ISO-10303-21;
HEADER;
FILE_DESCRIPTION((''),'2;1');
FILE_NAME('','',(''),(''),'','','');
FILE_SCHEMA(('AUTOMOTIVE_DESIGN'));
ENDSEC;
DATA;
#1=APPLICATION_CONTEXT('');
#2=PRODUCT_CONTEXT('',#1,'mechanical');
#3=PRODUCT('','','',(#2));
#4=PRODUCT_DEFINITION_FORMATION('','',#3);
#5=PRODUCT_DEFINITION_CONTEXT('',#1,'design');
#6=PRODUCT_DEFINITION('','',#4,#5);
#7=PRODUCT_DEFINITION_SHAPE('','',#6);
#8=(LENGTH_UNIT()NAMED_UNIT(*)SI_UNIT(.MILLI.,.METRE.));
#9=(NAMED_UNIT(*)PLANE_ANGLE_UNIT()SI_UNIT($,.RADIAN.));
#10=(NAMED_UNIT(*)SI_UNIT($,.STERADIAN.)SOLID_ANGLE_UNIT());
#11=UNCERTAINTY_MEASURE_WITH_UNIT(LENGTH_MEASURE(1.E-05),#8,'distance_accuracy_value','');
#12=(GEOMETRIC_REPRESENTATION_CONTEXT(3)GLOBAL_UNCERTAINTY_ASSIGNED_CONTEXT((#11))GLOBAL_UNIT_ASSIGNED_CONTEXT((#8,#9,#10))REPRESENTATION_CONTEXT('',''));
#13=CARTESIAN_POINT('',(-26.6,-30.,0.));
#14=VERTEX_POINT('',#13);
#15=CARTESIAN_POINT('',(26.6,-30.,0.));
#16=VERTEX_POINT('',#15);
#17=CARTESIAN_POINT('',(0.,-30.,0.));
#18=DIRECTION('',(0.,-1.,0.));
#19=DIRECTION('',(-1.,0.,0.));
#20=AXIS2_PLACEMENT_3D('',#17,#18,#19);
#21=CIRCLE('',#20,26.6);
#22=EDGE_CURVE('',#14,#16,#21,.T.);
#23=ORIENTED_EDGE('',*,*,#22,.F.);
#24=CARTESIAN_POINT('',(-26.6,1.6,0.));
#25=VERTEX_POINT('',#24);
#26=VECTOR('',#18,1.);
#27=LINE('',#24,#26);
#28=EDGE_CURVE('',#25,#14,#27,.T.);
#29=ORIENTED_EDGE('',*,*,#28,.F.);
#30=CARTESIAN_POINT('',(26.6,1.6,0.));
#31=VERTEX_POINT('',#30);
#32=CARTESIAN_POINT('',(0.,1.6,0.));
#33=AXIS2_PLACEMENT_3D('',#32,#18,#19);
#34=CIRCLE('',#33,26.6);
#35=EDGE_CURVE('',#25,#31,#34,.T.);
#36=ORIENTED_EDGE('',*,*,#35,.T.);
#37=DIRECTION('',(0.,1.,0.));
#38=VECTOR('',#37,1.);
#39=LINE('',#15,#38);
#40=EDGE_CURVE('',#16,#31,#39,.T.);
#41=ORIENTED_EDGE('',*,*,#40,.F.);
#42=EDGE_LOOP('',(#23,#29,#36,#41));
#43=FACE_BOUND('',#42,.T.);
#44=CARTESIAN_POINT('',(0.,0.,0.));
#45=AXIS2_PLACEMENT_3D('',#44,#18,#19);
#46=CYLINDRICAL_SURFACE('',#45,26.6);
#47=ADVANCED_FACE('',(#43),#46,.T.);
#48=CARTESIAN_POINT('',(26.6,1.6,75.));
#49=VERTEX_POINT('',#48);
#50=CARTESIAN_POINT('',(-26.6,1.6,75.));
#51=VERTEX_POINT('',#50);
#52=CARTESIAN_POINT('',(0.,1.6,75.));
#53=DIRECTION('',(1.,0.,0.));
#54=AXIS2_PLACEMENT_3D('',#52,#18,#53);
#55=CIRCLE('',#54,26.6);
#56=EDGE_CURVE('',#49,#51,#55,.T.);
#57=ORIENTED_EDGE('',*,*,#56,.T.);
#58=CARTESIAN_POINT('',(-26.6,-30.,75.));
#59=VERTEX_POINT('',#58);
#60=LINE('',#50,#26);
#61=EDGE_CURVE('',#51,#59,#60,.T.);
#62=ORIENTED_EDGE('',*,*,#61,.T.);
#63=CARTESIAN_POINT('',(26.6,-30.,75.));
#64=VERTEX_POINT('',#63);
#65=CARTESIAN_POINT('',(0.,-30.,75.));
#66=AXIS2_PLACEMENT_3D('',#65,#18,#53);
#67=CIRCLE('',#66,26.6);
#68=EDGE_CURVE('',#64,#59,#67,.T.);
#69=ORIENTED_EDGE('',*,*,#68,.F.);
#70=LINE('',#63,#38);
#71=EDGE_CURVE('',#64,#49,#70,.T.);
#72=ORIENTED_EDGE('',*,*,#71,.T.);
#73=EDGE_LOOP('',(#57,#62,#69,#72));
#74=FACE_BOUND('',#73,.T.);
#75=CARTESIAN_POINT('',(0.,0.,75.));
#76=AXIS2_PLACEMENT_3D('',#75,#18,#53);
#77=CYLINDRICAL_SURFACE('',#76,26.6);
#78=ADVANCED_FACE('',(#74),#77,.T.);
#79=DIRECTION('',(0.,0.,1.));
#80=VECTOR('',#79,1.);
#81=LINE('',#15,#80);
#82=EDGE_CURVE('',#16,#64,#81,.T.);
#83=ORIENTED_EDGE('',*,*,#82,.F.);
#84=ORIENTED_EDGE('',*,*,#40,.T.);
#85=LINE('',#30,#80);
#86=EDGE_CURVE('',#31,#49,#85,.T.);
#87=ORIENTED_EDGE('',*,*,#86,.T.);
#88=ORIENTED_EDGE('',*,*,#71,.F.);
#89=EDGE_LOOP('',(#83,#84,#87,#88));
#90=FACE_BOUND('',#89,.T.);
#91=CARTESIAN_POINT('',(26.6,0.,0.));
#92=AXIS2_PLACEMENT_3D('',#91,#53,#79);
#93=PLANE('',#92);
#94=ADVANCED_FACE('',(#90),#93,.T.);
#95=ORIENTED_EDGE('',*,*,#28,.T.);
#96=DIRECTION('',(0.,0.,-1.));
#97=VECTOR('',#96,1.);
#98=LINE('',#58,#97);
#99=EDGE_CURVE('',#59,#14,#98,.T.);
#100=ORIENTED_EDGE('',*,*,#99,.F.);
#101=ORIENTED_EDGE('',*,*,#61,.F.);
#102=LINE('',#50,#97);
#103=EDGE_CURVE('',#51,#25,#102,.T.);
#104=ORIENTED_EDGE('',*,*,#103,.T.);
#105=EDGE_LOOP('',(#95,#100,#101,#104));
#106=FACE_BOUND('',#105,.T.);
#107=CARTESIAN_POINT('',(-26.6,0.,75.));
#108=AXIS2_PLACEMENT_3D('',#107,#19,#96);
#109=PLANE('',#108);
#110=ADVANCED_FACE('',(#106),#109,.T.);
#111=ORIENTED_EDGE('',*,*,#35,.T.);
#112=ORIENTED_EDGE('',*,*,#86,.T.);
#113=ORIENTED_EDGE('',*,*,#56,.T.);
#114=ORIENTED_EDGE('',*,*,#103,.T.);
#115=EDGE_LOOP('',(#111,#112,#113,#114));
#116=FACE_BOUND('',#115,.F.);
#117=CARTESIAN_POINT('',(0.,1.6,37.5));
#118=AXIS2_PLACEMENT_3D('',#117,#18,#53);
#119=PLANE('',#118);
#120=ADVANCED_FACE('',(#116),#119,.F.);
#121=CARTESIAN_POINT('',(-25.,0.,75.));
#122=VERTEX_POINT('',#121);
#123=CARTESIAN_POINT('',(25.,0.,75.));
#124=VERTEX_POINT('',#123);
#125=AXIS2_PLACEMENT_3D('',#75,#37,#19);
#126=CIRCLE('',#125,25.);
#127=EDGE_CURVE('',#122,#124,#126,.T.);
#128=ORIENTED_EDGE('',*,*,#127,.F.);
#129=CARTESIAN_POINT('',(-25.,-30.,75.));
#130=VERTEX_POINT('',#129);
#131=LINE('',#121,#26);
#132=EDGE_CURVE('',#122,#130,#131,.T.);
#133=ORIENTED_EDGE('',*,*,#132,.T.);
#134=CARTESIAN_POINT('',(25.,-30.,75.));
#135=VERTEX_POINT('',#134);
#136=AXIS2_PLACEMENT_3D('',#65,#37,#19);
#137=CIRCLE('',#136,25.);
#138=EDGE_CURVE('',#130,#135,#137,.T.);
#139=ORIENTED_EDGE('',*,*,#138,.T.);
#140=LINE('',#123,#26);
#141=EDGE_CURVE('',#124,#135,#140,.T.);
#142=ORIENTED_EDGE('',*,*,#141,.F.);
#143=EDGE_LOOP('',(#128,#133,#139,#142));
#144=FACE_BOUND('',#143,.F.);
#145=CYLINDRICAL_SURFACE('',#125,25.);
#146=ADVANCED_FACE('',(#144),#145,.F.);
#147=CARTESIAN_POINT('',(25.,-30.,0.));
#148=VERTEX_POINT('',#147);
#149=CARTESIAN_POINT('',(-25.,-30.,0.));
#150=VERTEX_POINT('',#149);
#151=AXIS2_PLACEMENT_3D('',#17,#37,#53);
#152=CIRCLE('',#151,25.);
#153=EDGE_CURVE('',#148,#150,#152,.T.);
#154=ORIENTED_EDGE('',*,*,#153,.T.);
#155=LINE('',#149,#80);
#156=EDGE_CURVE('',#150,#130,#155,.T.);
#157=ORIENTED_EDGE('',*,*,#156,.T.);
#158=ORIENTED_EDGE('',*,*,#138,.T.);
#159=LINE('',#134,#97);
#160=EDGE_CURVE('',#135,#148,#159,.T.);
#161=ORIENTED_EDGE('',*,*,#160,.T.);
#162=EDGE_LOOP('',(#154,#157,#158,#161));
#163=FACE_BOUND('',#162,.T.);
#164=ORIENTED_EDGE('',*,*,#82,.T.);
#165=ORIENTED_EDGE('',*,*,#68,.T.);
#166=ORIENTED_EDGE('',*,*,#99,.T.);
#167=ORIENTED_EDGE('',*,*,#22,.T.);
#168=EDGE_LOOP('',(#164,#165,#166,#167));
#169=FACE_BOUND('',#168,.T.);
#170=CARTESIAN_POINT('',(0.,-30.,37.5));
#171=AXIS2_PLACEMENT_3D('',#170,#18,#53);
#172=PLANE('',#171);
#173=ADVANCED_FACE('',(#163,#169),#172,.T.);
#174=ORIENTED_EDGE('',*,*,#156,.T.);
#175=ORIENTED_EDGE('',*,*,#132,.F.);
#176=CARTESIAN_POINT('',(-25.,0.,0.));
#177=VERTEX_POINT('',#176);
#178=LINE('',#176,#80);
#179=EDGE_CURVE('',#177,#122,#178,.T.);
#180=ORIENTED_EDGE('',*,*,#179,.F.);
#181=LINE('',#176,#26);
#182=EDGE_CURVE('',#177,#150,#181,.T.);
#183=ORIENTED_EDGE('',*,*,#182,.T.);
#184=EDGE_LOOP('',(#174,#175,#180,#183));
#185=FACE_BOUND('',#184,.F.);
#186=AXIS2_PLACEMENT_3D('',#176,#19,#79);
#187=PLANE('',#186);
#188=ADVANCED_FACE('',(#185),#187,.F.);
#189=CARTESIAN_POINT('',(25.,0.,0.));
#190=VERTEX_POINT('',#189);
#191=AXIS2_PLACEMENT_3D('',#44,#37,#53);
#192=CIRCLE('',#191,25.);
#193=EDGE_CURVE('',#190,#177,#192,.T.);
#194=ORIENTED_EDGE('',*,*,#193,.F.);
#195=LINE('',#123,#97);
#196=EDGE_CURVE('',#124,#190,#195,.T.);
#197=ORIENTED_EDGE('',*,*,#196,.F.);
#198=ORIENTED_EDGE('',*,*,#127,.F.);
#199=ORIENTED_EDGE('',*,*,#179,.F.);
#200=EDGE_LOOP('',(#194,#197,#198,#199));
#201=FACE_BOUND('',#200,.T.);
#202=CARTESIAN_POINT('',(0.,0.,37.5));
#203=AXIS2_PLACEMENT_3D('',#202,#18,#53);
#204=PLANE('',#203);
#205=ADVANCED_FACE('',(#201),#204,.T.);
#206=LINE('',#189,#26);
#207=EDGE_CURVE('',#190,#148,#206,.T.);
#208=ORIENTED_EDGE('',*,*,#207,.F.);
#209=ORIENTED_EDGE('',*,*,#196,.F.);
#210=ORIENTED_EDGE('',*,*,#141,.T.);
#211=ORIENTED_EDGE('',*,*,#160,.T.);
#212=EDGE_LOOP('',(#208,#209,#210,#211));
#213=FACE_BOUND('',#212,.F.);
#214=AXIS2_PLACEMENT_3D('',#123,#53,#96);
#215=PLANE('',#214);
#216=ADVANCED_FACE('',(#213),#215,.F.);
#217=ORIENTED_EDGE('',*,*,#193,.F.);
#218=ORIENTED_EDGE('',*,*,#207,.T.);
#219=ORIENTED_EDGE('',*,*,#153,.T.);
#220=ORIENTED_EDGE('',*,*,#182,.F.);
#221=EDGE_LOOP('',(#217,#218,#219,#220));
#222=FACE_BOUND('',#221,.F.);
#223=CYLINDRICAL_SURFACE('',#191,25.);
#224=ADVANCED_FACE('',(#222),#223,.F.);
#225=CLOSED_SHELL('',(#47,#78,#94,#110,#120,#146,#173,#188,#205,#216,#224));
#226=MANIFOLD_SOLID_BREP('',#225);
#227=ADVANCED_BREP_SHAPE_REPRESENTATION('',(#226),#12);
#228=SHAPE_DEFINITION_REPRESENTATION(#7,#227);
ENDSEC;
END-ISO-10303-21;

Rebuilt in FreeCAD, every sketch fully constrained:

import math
import FreeCAD as App
import Part
import Sketcher
from FreeCAD import Vector
Q = App.Units.Quantity

doc = App.newDocument("Part")
body = doc.addObject("PartDesign::Body", "Body")

sketch1 = body.newObject("Sketcher::SketchObject", "Sketch")
sketch1.AttachmentSupport = (doc.getObject("XZ_Plane"), [""])
sketch1.MapMode = "FlatFace"
sketch1.addGeometry([
    Part.ArcOfCircle(Part.Circle(Vector(0, 75, 0), Vector(0, 0, 1), 27), math.radians(0), math.radians(180)),
    Part.LineSegment(Vector(-27, 75, 0), Vector(-27, 0, 0)),
    Part.ArcOfCircle(Part.Circle(Vector(0, 0, 0), Vector(0, 0, 1), 27), math.radians(180), math.radians(360)),
    Part.LineSegment(Vector(27, 0, 0), Vector(27, 75, 0)),
    Part.ArcOfCircle(Part.Circle(Vector(0, 75, 0), Vector(0, 0, 1), 25), math.radians(0), math.radians(180)),
    Part.LineSegment(Vector(25, 75, 0), Vector(25, 0, 0)),
    Part.ArcOfCircle(Part.Circle(Vector(0, 0, 0), Vector(0, 0, 1), 25), math.radians(180), math.radians(360)),
    Part.LineSegment(Vector(-25, 0, 0), Vector(-25, 75, 0)),
], False)
sketch1.addConstraint([
    Sketcher.Constraint("Tangent", 0, 2, 1, 1),
    Sketcher.Constraint("Tangent", 1, 2, 2, 1),
    Sketcher.Constraint("Tangent", 2, 2, 3, 1),
    Sketcher.Constraint("Tangent", 3, 2, 0, 1),
    Sketcher.Constraint("Tangent", 4, 1, 5, 1),
    Sketcher.Constraint("Tangent", 5, 2, 6, 2),
    Sketcher.Constraint("Tangent", 6, 1, 7, 1),
    Sketcher.Constraint("Tangent", 7, 2, 4, 2),
    Sketcher.Constraint("Vertical", 1),
    Sketcher.Constraint("Vertical", 3),
    Sketcher.Constraint("Vertical", 5),
    Sketcher.Constraint("Vertical", 7),
    Sketcher.Constraint("Coincident", 2, 3, -1, 1),
    Sketcher.Constraint("Coincident", 6, 3, -1, 1),
    Sketcher.Constraint("Horizontal", 4, 3, 0, 2),
    Sketcher.Constraint("Radius", 4, Q("25 mm")),
    Sketcher.Constraint("Radius", 0, Q("26.6 mm")),
    Sketcher.Constraint("DistanceY", 1, 2, 1, 1, Q("75 mm")),
])
pad1 = body.newObject("PartDesign::Pad", "Pad")
pad1.Profile = sketch1
pad1.Length = 30

sketch2 = body.newObject("Sketcher::SketchObject", "Sketch001")
sketch2.AttachmentSupport = (doc.getObject("XZ_Plane"), [""])
sketch2.MapMode = "FlatFace"
sketch2.addGeometry([
    Part.ArcOfCircle(Part.Circle(Vector(0, 75, 0), Vector(0, 0, 1), 27), math.radians(0), math.radians(180)),
    Part.LineSegment(Vector(-27, 75, 0), Vector(-27, 0, 0)),
    Part.ArcOfCircle(Part.Circle(Vector(0, 0, 0), Vector(0, 0, 1), 27), math.radians(180), math.radians(360)),
    Part.LineSegment(Vector(27, 0, 0), Vector(27, 75, 0)),
], False)
sketch2.addConstraint([
    Sketcher.Constraint("Tangent", 0, 2, 1, 1),
    Sketcher.Constraint("Tangent", 1, 2, 2, 1),
    Sketcher.Constraint("Tangent", 2, 2, 3, 1),
    Sketcher.Constraint("Tangent", 3, 2, 0, 1),
    Sketcher.Constraint("Vertical", 1),
    Sketcher.Constraint("Vertical", 3),
    Sketcher.Constraint("Coincident", 2, 3, -1, 1),
    Sketcher.Constraint("Radius", 0, Q("26.6 mm")),
    Sketcher.Constraint("DistanceY", 1, 2, 1, 1, Q("75 mm")),
])
pad2 = body.newObject("PartDesign::Pad", "Pad001")
pad2.Profile = sketch2
pad2.Length = 1.6
pad2.Reversed = True

doc.recompute()
